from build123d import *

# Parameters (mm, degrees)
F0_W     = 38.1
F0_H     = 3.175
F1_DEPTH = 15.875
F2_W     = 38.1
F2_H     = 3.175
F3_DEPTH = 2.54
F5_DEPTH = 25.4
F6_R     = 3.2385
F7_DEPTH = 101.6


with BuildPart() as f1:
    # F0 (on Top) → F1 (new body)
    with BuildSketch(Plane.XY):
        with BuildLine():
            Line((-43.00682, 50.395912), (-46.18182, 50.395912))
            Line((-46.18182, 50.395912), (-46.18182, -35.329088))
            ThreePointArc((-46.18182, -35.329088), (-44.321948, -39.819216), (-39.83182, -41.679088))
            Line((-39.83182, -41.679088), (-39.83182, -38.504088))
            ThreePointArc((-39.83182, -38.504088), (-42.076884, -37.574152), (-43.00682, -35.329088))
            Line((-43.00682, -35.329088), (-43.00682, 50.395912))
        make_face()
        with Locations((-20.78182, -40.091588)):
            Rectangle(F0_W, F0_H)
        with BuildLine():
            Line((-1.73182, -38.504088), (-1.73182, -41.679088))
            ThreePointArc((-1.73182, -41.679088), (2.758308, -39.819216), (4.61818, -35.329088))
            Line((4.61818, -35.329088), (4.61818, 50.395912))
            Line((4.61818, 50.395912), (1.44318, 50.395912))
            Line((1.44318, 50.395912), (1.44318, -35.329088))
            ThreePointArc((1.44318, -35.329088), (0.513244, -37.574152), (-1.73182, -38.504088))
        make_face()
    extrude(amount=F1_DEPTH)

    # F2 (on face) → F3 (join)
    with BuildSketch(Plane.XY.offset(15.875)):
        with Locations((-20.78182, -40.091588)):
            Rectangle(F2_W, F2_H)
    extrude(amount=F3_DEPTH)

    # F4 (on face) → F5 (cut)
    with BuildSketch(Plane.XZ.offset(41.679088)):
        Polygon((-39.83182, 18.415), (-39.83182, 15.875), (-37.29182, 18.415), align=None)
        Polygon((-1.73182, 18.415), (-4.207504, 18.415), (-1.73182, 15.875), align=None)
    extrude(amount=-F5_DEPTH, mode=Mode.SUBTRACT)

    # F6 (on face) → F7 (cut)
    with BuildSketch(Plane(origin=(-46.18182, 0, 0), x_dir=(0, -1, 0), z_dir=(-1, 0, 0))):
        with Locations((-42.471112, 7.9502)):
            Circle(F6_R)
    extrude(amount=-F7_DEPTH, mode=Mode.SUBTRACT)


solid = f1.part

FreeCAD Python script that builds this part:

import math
import FreeCAD as App
import Part
import Sketcher

V = App.Vector
Q = App.Units.Quantity

doc = App.newDocument("Part")
body = doc.addObject("PartDesign::Body", "Body")

# Sketch on XY plane
sketch1 = body.newObject("Sketcher::SketchObject", "Sketch")
sketch1.AttachmentSupport = (doc.getObject("XY_Plane"), [""])
sketch1.MapMode = "FlatFace"
sketch1.addGeometry(Part.LineSegment(V(-43, 50.4, 0), V(-46.2, 50.4, 0)), False)
sketch1.addGeometry(Part.LineSegment(V(-46.2, 50.4, 0), V(-46.2, -35.3, 0)), False)
sketch1.addGeometry(Part.ArcOfCircle(Part.Circle(V(-39.8, -35.3, 0), V(0, 0, 1), 6.4), math.radians(-180), math.radians(-90)), False)
sketch1.addGeometry(Part.LineSegment(V(-39.8, -41.7, 0), V(-1.7, -41.7, 0)), False)
sketch1.addGeometry(Part.ArcOfCircle(Part.Circle(V(-1.7, -35.3, 0), V(0, 0, 1), 6.4), math.radians(-90), math.radians(0)), False)
sketch1.addGeometry(Part.LineSegment(V(4.6, -35.3, 0), V(4.6, 50.4, 0)), False)
sketch1.addGeometry(Part.LineSegment(V(4.6, 50.4, 0), V(1.4, 50.4, 0)), False)
sketch1.addGeometry(Part.LineSegment(V(1.4, 50.4, 0), V(1.4, -35.3, 0)), False)
sketch1.addGeometry(Part.ArcOfCircle(Part.Circle(V(-1.7, -35.3, 0), V(0, 0, 1), 3.2), math.radians(-90), math.radians(0)), False)
sketch1.addGeometry(Part.LineSegment(V(-1.7, -38.5, 0), V(-39.8, -38.5, 0)), False)
sketch1.addGeometry(Part.ArcOfCircle(Part.Circle(V(-39.8, -35.3, 0), V(0, 0, 1), 3.2), math.radians(-180), math.radians(-90)), False)
sketch1.addGeometry(Part.LineSegment(V(-43, -35.3, 0), V(-43, 50.4, 0)), False)
sketch1.addConstraint(Sketcher.Constraint("Coincident", 0, 2, 1, 1))
sketch1.addConstraint(Sketcher.Constraint("Tangent", 1, 2, 2, 1))
sketch1.addConstraint(Sketcher.Constraint("Tangent", 2, 2, 3, 1))
sketch1.addConstraint(Sketcher.Constraint("Tangent", 3, 2, 4, 1))
sketch1.addConstraint(Sketcher.Constraint("Tangent", 4, 2, 5, 1))
sketch1.addConstraint(Sketcher.Constraint("Coincident", 5, 2, 6, 1))
sketch1.addConstraint(Sketcher.Constraint("Coincident", 6, 2, 7, 1))
sketch1.addConstraint(Sketcher.Constraint("Tangent", 7, 2, 8, 2))
sketch1.addConstraint(Sketcher.Constraint("Tangent", 8, 1, 9, 1))
sketch1.addConstraint(Sketcher.Constraint("Tangent", 9, 2, 10, 2))
sketch1.addConstraint(Sketcher.Constraint("Tangent", 10, 1, 11, 1))
sketch1.addConstraint(Sketcher.Constraint("Coincident", 11, 2, 0, 1))
sketch1.addConstraint(Sketcher.Constraint("Horizontal", 0))
sketch1.addConstraint(Sketcher.Constraint("Vertical", 1))
sketch1.addConstraint(Sketcher.Constraint("Horizontal", 3))
sketch1.addConstraint(Sketcher.Constraint("Vertical", 5))
sketch1.addConstraint(Sketcher.Constraint("Horizontal", 6))
sketch1.addConstraint(Sketcher.Constraint("Vertical", 7))
sketch1.addConstraint(Sketcher.Constraint("Horizontal", 9))
sketch1.addConstraint(Sketcher.Constraint("Vertical", 11))
sketch1.addConstraint(Sketcher.Constraint("Coincident", 8, 3, 4, 3))
sketch1.addConstraint(Sketcher.Constraint("Coincident", 10, 3, 2, 3))
sketch1.addConstraint(Sketcher.Constraint("Equal", 2, 4))
sketch1.addConstraint(Sketcher.Constraint("Horizontal", 0, 2, 5, 2))
sketch1.addConstraint(Sketcher.Constraint("Radius", 2, Q("0.25 in")))
sketch1.addConstraint(Sketcher.Constraint("DistanceX", 3, 1, 3, 2, Q("1.5 in")))
sketch1.addConstraint(Sketcher.Constraint("Radius", 8, Q("0.125 in")))
sketch1.addConstraint(Sketcher.Constraint("DistanceY", 1, 2, 1, 1, Q("3.375 in")))
sketch1.addConstraint(Sketcher.Constraint("DistanceX", 2, 3, -1, 1, Q("39.83182 mm")))
sketch1.addConstraint(Sketcher.Constraint("DistanceY", 9, 2, -1, 1, Q("38.504088 mm")))
pad1 = body.newObject("PartDesign::Pad", "Pad")
pad1.Profile = sketch1
pad1.Length = Q("0.625 in")

# Sketch on XY plane
sketch2 = body.newObject("Sketcher::SketchObject", "Sketch001")
sketch2.AttachmentSupport = (doc.getObject("XY_Plane"), [""])
sketch2.MapMode = "FlatFace"
sketch2.AttachmentOffset = App.Placement(V(0, 0, 0.625 * 25.4), App.Rotation())
sketch2.addGeometry(Part.LineSegment(V(-39.8, -38.5, 0), V(-39.8, -41.7, 0)), False)
sketch2.addGeometry(Part.LineSegment(V(-39.8, -41.7, 0), V(-1.7, -41.7, 0)), False)
sketch2.addGeometry(Part.LineSegment(V(-1.7, -41.7, 0), V(-1.7, -38.5, 0)), False)
sketch2.addGeometry(Part.LineSegment(V(-1.7, -38.5, 0), V(-39.8, -38.5, 0)), False)
sketch2.addConstraint(Sketcher.Constraint("Coincident", 0, 2, 1, 1))
sketch2.addConstraint(Sketcher.Constraint("Coincident", 1, 2, 2, 1))
sketch2.addConstraint(Sketcher.Constraint("Coincident", 2, 2, 3, 1))
sketch2.addConstraint(Sketcher.Constraint("Coincident", 3, 2, 0, 1))
sketch2.addConstraint(Sketcher.Constraint("Vertical", 0))
sketch2.addConstraint(Sketcher.Constraint("Horizontal", 1))
sketch2.addConstraint(Sketcher.Constraint("Vertical", 2))
sketch2.addConstraint(Sketcher.Constraint("Horizontal", 3))
sketch2.addConstraint(Sketcher.Constraint("DistanceX", 1, 1, 1, 2, Q("1.5 in")))
sketch2.addConstraint(Sketcher.Constraint("DistanceY", 0, 2, 0, 1, Q("0.125 in")))
sketch2.addConstraint(Sketcher.Constraint("DistanceX", 0, 2, -1, 1, Q("39.83182 mm")))
sketch2.addConstraint(Sketcher.Constraint("DistanceY", 2, 2, -1, 1, Q("38.504088 mm")))
pad2 = body.newObject("PartDesign::Pad", "Pad001")
pad2.Profile = sketch2
pad2.Length = Q("0.1 in")

# Sketch on XZ plane
sketch3 = body.newObject("Sketcher::SketchObject", "Sketch002")
sketch3.AttachmentSupport = (doc.getObject("XZ_Plane"), [""])
sketch3.MapMode = "FlatFace"
sketch3.AttachmentOffset = App.Placement(V(0, 0, 41.679088), App.Rotation())
sketch3.addGeometry(Part.LineSegment(V(-39.8, 18.4, 0), V(-39.8, 15.9, 0)), False)
sketch3.addGeometry(Part.LineSegment(V(-39.8, 15.9, 0), V(-37.3, 18.4, 0)), False)
sketch3.addGeometry(Part.LineSegment(V(-37.3, 18.4, 0), V(-39.8, 18.4, 0)), False)
sketch3.addGeometry(Part.LineSegment(V(-1.7, 18.4, 0), V(-4.2, 18.4, 0)), False)
sketch3.addGeometry(Part.LineSegment(V(-4.2, 18.4, 0), V(-1.7, 15.9, 0)), False)
sketch3.addGeometry(Part.LineSegment(V(-1.7, 15.9, 0), V(-1.7, 18.4, 0)), False)
sketch3.addConstraint(Sketcher.Constraint("Coincident", 0, 2, 1, 1))
sketch3.addConstraint(Sketcher.Constraint("Coincident", 1, 2, 2, 1))
sketch3.addConstraint(Sketcher.Constraint("Coincident", 2, 2, 0, 1))
sketch3.addConstraint(Sketcher.Constraint("Coincident", 3, 2, 4, 1))
sketch3.addConstraint(Sketcher.Constraint("Coincident", 4, 2, 5, 1))
sketch3.addConstraint(Sketcher.Constraint("Coincident", 5, 2, 3, 1))
sketch3.addConstraint(Sketcher.Constraint("Vertical", 0))
sketch3.addConstraint(Sketcher.Constraint("Horizontal", 2))
sketch3.addConstraint(Sketcher.Constraint("Horizontal", 3))
sketch3.addConstraint(Sketcher.Constraint("Vertical", 5))
sketch3.addConstraint(Sketcher.Constraint("Horizontal", 2, 2, 3, 2))
sketch3.addConstraint(Sketcher.Constraint("Horizontal", 0, 2, 4, 2))
sketch3.addConstraint(Sketcher.Constraint("Equal", 2, 0))
sketch3.addConstraint(Sketcher.Constraint("DistanceX", 2, 2, 2, 1, Q("0.1 in")))
sketch3.addConstraint(Sketcher.Constraint("DistanceX", 1, 2, 4, 2, Q("1.4 in")))
sketch3.addConstraint(Sketcher.Constraint("DistanceY", -1, 1, 0, 2, Q("0.625 in")))
sketch3.addConstraint(Sketcher.Constraint("DistanceX", 3, 2, 3, 1, Q("2.475684 mm")))
sketch3.addConstraint(Sketcher.Constraint("DistanceX", 0, 2, -1, 1, Q("39.83182 mm")))
pocket1 = body.newObject("PartDesign::Pocket", "Pocket")
pocket1.Profile = sketch3
pocket1.Length = Q("1 in")

# Sketch on YZ plane
sketch4 = body.newObject("Sketcher::SketchObject", "Sketch003")
sketch4.AttachmentSupport = (doc.getObject("YZ_Plane"), [""])
sketch4.MapMode = "FlatFace"
sketch4.AttachmentOffset = App.Placement(V(0, 0, -46.18182), App.Rotation())
sketch4.addGeometry(Part.Circle(V(42.5, 8, 0), V(0, 0, 1), 3.2), False)
sketch4.addConstraint(Sketcher.Constraint("Diameter", 0, Q("0.255 in")))
sketch4.addConstraint(Sketcher.Constraint("DistanceY", -1, 1, 0, 3, Q("0.313 in")))
sketch4.addConstraint(Sketcher.Constraint("DistanceX", -1, 1, 0, 3, Q("42.471112 mm")))
pocket2 = body.newObject("PartDesign::Pocket", "Pocket001")
pocket2.Profile = sketch4
pocket2.Length = Q("4 in")
pocket2.Reversed = True

doc.recompute()
